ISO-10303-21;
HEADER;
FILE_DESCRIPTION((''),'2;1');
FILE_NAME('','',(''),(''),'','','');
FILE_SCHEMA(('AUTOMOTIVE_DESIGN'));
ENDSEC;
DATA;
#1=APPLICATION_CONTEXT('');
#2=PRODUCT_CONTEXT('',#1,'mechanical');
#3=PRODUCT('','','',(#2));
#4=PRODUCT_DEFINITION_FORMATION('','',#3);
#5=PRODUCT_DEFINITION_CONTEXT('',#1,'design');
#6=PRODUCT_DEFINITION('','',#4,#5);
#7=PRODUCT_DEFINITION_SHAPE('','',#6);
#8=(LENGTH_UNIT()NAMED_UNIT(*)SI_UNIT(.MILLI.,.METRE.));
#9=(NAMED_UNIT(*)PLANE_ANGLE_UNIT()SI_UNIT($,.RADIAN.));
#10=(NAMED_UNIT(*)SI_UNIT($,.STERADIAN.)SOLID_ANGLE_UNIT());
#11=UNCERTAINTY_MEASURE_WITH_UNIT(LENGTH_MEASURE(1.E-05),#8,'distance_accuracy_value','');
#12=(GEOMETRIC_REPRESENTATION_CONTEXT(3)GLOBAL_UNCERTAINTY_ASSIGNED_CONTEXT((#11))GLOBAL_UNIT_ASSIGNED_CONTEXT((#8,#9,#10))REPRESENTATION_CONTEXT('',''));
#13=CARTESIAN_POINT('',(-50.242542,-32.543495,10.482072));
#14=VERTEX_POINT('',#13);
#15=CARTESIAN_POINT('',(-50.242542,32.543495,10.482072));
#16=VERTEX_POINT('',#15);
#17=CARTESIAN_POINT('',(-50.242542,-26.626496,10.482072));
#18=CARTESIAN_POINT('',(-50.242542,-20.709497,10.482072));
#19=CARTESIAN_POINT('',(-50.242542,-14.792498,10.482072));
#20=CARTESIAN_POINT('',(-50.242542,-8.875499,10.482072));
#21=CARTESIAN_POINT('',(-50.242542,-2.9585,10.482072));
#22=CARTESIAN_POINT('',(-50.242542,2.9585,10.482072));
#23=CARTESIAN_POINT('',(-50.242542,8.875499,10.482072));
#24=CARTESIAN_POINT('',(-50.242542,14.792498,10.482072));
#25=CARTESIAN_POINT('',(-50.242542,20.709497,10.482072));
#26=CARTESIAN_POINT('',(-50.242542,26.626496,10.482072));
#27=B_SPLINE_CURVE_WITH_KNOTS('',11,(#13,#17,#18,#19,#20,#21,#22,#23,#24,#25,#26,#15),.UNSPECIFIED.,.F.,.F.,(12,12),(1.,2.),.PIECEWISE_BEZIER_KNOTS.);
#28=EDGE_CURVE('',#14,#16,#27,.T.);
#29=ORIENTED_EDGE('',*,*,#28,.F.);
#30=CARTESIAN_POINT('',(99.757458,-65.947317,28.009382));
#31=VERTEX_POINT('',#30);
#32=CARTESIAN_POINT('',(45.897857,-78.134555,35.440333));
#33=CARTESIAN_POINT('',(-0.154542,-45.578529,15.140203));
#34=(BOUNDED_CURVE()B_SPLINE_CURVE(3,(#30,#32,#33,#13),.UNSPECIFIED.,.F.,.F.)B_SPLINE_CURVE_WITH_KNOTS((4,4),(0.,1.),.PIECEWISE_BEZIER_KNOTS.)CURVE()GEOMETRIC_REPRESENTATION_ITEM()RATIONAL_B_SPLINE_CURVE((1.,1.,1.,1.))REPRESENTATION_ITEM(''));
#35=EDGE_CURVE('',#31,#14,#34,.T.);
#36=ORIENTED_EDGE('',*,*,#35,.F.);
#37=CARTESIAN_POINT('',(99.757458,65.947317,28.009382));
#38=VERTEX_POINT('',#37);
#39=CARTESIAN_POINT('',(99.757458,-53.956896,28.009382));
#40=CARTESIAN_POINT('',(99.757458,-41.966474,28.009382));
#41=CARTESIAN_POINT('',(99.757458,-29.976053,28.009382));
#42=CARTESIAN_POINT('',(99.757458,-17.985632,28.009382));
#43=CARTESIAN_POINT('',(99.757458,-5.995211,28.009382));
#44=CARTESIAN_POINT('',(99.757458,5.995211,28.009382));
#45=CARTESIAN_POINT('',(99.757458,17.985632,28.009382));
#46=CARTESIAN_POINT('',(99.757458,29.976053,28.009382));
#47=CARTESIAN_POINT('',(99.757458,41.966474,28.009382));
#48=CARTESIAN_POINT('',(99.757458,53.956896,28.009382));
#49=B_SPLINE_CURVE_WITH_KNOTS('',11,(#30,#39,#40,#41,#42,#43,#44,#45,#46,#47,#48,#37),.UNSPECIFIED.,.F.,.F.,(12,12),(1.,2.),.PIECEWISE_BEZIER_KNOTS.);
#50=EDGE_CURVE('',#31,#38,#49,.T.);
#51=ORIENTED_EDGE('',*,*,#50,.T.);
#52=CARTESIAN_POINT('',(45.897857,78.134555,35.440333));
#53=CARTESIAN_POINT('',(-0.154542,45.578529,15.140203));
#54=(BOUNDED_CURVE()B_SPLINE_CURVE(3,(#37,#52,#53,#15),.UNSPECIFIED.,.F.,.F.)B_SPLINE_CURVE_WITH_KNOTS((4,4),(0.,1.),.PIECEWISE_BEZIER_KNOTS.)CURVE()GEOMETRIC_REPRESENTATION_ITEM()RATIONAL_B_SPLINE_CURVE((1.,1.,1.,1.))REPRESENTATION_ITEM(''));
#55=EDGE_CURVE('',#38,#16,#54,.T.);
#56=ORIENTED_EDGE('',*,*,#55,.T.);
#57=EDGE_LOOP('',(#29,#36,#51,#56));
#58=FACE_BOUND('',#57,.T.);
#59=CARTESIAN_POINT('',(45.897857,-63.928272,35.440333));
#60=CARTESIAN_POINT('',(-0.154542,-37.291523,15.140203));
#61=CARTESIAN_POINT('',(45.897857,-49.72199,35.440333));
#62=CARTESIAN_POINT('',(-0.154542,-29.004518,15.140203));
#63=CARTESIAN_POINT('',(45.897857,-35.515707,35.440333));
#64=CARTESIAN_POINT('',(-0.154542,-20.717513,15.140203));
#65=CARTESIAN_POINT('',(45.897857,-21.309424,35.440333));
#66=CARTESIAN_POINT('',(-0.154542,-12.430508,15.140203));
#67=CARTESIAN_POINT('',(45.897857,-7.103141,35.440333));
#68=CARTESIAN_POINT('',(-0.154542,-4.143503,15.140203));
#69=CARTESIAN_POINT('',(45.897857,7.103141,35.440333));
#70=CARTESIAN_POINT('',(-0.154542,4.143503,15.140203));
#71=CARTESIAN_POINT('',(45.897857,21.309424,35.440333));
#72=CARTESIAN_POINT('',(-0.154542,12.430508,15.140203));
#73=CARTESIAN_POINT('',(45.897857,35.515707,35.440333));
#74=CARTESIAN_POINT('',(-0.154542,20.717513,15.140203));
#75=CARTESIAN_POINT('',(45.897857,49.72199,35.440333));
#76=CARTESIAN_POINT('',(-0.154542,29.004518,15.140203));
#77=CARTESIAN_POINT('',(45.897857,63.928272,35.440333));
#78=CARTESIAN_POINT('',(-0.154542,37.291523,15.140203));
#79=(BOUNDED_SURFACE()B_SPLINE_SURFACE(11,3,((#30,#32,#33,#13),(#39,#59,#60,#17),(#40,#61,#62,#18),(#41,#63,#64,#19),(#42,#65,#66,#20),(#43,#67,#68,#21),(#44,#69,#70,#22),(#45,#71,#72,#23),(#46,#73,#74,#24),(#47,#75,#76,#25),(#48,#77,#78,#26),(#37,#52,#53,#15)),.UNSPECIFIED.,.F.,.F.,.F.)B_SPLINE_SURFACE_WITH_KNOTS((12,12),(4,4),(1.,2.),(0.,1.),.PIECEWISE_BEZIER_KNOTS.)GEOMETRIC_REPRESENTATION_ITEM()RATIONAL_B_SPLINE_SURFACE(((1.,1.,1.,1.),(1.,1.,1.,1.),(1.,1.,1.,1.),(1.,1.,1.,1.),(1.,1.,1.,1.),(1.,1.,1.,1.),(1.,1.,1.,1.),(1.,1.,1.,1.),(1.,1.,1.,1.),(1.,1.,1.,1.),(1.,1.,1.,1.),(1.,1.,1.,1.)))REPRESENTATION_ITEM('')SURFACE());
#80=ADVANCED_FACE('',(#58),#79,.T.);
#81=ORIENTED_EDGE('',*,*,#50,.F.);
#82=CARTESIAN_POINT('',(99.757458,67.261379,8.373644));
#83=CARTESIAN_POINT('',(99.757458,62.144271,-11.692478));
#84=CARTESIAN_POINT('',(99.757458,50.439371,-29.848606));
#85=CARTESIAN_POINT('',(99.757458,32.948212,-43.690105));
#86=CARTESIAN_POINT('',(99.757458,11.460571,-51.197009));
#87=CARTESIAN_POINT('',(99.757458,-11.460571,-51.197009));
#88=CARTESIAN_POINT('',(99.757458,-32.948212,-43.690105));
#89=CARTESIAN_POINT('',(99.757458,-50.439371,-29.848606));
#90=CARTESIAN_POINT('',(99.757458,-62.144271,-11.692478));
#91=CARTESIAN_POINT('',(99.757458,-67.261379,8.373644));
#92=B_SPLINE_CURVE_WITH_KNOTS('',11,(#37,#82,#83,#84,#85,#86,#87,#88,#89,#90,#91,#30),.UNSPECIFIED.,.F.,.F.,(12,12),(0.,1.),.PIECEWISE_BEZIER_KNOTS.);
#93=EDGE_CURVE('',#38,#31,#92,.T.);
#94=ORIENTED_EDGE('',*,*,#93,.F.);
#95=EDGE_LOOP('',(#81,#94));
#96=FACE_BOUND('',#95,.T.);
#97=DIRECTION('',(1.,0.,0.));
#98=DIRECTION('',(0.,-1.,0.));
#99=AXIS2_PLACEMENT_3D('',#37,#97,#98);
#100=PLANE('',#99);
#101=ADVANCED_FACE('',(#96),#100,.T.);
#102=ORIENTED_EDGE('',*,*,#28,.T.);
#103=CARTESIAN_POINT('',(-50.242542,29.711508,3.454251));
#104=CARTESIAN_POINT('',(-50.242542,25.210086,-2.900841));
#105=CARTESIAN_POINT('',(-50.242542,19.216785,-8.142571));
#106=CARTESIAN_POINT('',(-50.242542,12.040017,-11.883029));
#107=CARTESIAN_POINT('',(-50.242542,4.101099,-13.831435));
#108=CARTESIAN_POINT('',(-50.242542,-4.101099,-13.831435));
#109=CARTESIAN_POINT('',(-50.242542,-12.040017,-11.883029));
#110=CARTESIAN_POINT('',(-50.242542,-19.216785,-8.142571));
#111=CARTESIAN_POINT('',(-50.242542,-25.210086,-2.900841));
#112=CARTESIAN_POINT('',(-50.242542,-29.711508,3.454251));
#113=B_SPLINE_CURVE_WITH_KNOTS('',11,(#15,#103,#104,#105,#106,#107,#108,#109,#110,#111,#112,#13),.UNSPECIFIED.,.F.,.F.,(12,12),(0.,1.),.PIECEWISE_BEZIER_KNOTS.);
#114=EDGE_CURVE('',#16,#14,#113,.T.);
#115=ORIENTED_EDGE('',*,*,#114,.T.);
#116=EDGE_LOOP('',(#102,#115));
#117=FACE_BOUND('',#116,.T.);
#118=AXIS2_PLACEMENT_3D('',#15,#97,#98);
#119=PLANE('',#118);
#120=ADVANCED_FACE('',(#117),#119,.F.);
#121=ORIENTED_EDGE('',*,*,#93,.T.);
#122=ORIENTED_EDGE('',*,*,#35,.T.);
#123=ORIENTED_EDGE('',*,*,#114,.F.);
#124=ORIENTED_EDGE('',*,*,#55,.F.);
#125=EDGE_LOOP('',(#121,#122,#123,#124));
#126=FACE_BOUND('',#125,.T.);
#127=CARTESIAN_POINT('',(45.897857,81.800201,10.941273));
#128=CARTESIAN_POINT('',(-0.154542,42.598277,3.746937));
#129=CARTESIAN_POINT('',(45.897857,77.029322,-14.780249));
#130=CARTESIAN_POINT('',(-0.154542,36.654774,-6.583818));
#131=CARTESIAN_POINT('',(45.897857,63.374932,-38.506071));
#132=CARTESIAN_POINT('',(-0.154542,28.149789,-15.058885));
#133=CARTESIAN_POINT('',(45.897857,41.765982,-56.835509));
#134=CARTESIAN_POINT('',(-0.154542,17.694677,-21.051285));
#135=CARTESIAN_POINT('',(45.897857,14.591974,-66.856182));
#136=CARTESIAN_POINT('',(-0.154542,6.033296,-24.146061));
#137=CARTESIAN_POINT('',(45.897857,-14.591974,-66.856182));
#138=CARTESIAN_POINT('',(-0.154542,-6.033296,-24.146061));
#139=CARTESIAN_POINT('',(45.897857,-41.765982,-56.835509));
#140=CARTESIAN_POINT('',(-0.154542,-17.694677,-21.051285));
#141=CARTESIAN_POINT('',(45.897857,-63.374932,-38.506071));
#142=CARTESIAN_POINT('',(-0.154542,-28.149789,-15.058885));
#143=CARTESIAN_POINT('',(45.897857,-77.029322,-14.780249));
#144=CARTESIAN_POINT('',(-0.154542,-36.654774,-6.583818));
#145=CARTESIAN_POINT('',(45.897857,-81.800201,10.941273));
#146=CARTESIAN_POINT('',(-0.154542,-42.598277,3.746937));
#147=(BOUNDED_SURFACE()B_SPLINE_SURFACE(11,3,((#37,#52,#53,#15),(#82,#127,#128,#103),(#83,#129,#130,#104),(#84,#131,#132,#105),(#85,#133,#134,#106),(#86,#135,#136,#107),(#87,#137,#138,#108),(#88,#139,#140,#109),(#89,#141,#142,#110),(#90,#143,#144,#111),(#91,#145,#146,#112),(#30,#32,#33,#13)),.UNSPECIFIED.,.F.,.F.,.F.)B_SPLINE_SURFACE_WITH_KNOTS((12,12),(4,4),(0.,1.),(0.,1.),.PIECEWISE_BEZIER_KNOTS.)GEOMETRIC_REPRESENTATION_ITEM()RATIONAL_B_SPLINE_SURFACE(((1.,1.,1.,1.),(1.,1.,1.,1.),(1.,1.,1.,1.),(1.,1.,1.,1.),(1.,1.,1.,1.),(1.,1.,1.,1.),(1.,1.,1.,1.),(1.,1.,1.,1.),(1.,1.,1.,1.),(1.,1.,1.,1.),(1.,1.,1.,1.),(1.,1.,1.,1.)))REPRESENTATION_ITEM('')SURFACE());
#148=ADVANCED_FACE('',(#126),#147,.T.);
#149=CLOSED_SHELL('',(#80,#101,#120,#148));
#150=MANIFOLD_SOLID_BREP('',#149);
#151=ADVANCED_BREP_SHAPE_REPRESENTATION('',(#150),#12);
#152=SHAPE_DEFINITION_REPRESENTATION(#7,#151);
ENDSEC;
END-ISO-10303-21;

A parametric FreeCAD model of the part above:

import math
import FreeCAD as App
import Part
import Sketcher
from FreeCAD import Vector
Q = App.Units.Quantity

doc = App.newDocument("Part")
body = doc.addObject("PartDesign::Body", "Body")

sketch1 = doc.addObject("Sketcher::SketchObject", "Sketch")
body.addObject(sketch1)
sketch1.AttachmentSupport = (doc.YZ_Plane, [""])
sketch1.MapMode = "FlatFace"
sketch1.AttachmentOffset = App.Placement(Vector(0, 0, 99.757458), App.Rotation())
sketch1.addGeometry(Part.ArcOfCircle(Part.Circle(Vector(0, 23.596057, 0), Vector(0, 0, 1), 66.094826), math.radians(176.171362), math.radians(363.828638)), False)
sketch1.addGeometry(Part.LineSegment(Vector(-65.947317, 28.009382, 0), Vector(65.947317, 28.009382, 0)), False)
sketch1.addConstraint(Sketcher.Constraint("Coincident", 0, 1, 1, 1))
sketch1.addConstraint(Sketcher.Constraint("Coincident", 1, 2, 0, 2))
sketch1.addConstraint(Sketcher.Constraint("Horizontal", 1))
sketch1.addConstraint(Sketcher.Constraint("PointOnObject", 0, 3, -2))
sketch1.addConstraint(Sketcher.Constraint("Radius", 0, Q("66.094826 mm")))
sketch1.addConstraint(Sketcher.Constraint("DistanceX", 1, 1, 1, 2, Q("131.894634 mm")))
sketch1.addConstraint(Sketcher.Constraint("DistanceY", -1, 1, 1, 2, Q("28.009382 mm")))

sketch2 = doc.addObject("Sketcher::SketchObject", "Sketch001")
body.addObject(sketch2)
sketch2.AttachmentSupport = (doc.YZ_Plane, [""])
sketch2.MapMode = "FlatFace"
sketch2.AttachmentOffset = App.Placement(Vector(0, 0, 49.757458), App.Rotation())
sketch2.addGeometry(Part.ArcOfCircle(Part.Circle(Vector(0, 23.596057, 0), Vector(0, 0, 1), 66.094826), math.radians(176.171362), math.radians(363.828638)), False)
sketch2.addGeometry(Part.LineSegment(Vector(-65.947317, 28.009382, 0), Vector(65.947317, 28.009382, 0)), False)
sketch2.addConstraint(Sketcher.Constraint("Coincident", 0, 1, 1, 1))
sketch2.addConstraint(Sketcher.Constraint("Coincident", 1, 2, 0, 2))
sketch2.addConstraint(Sketcher.Constraint("Horizontal", 1))
sketch2.addConstraint(Sketcher.Constraint("PointOnObject", 0, 3, -2))
sketch2.addConstraint(Sketcher.Constraint("Radius", 0, Q("66.094826 mm")))
sketch2.addConstraint(Sketcher.Constraint("DistanceX", 1, 1, 1, 2, Q("131.894634 mm")))
sketch2.addConstraint(Sketcher.Constraint("DistanceY", -1, 1, 1, 2, Q("28.009382 mm")))

sketch3 = doc.addObject("Sketcher::SketchObject", "Sketch002")
body.addObject(sketch3)
sketch3.AttachmentSupport = (doc.YZ_Plane, [""])
sketch3.MapMode = "FlatFace"
sketch3.AttachmentOffset = App.Placement(Vector(0, 0, -0.242542), App.Rotation())
sketch3.addGeometry(Part.ArcOfCircle(Part.Circle(Vector(0, 23.596057, 0), Vector(0, 0, 1), 50.240959), math.radians(-174.660086), math.radians(-5.339914)), False)
sketch3.addGeometry(Part.LineSegment(Vector(-50.022919, 18.920422, 0), Vector(50.022919, 18.920422, 0)), False)
sketch3.addConstraint(Sketcher.Constraint("Coincident", 0, 1, 1, 1))
sketch3.addConstraint(Sketcher.Constraint("Coincident", 1, 2, 0, 2))
sketch3.addConstraint(Sketcher.Constraint("Horizontal", 1))
sketch3.addConstraint(Sketcher.Constraint("PointOnObject", 0, 3, -2))
sketch3.addConstraint(Sketcher.Constraint("Radius", 0, Q("50.240959 mm")))
sketch3.addConstraint(Sketcher.Constraint("DistanceX", 1, 1, 1, 2, Q("100.045838 mm")))
sketch3.addConstraint(Sketcher.Constraint("DistanceY", -1, 1, 0, 1, Q("18.920422 mm")))

sketch4 = doc.addObject("Sketcher::SketchObject", "Sketch003")
body.addObject(sketch4)
sketch4.AttachmentSupport = (doc.YZ_Plane, [""])
sketch4.MapMode = "FlatFace"
sketch4.AttachmentOffset = App.Placement(Vector(0, 0, -50.242542), App.Rotation())
sketch4.addGeometry(Part.ArcOfCircle(Part.Circle(Vector(0, 23.596057, 0), Vector(0, 0, 1), 35.086403), math.radians(-158.052146), math.radians(-21.947854)), False)
sketch4.addGeometry(Part.LineSegment(Vector(-32.543495, 10.482072, 0), Vector(32.543495, 10.482072, 0)), False)
sketch4.addConstraint(Sketcher.Constraint("Coincident", 0, 1, 1, 1))
sketch4.addConstraint(Sketcher.Constraint("Coincident", 1, 2, 0, 2))
sketch4.addConstraint(Sketcher.Constraint("Horizontal", 1))
sketch4.addConstraint(Sketcher.Constraint("PointOnObject", 0, 3, -2))
sketch4.addConstraint(Sketcher.Constraint("Radius", 0, Q("35.086403 mm")))
sketch4.addConstraint(Sketcher.Constraint("DistanceX", 1, 1, 1, 2, Q("65.08699 mm")))
sketch4.addConstraint(Sketcher.Constraint("DistanceY", -1, 1, 0, 1, Q("10.482072 mm")))

additiveloft = doc.addObject("PartDesign::AdditiveLoft", "AdditiveLoft")
body.addObject(additiveloft)
additiveloft.Profile = sketch1
additiveloft.Sections = [sketch2, sketch3, sketch4]

doc.recompute()
